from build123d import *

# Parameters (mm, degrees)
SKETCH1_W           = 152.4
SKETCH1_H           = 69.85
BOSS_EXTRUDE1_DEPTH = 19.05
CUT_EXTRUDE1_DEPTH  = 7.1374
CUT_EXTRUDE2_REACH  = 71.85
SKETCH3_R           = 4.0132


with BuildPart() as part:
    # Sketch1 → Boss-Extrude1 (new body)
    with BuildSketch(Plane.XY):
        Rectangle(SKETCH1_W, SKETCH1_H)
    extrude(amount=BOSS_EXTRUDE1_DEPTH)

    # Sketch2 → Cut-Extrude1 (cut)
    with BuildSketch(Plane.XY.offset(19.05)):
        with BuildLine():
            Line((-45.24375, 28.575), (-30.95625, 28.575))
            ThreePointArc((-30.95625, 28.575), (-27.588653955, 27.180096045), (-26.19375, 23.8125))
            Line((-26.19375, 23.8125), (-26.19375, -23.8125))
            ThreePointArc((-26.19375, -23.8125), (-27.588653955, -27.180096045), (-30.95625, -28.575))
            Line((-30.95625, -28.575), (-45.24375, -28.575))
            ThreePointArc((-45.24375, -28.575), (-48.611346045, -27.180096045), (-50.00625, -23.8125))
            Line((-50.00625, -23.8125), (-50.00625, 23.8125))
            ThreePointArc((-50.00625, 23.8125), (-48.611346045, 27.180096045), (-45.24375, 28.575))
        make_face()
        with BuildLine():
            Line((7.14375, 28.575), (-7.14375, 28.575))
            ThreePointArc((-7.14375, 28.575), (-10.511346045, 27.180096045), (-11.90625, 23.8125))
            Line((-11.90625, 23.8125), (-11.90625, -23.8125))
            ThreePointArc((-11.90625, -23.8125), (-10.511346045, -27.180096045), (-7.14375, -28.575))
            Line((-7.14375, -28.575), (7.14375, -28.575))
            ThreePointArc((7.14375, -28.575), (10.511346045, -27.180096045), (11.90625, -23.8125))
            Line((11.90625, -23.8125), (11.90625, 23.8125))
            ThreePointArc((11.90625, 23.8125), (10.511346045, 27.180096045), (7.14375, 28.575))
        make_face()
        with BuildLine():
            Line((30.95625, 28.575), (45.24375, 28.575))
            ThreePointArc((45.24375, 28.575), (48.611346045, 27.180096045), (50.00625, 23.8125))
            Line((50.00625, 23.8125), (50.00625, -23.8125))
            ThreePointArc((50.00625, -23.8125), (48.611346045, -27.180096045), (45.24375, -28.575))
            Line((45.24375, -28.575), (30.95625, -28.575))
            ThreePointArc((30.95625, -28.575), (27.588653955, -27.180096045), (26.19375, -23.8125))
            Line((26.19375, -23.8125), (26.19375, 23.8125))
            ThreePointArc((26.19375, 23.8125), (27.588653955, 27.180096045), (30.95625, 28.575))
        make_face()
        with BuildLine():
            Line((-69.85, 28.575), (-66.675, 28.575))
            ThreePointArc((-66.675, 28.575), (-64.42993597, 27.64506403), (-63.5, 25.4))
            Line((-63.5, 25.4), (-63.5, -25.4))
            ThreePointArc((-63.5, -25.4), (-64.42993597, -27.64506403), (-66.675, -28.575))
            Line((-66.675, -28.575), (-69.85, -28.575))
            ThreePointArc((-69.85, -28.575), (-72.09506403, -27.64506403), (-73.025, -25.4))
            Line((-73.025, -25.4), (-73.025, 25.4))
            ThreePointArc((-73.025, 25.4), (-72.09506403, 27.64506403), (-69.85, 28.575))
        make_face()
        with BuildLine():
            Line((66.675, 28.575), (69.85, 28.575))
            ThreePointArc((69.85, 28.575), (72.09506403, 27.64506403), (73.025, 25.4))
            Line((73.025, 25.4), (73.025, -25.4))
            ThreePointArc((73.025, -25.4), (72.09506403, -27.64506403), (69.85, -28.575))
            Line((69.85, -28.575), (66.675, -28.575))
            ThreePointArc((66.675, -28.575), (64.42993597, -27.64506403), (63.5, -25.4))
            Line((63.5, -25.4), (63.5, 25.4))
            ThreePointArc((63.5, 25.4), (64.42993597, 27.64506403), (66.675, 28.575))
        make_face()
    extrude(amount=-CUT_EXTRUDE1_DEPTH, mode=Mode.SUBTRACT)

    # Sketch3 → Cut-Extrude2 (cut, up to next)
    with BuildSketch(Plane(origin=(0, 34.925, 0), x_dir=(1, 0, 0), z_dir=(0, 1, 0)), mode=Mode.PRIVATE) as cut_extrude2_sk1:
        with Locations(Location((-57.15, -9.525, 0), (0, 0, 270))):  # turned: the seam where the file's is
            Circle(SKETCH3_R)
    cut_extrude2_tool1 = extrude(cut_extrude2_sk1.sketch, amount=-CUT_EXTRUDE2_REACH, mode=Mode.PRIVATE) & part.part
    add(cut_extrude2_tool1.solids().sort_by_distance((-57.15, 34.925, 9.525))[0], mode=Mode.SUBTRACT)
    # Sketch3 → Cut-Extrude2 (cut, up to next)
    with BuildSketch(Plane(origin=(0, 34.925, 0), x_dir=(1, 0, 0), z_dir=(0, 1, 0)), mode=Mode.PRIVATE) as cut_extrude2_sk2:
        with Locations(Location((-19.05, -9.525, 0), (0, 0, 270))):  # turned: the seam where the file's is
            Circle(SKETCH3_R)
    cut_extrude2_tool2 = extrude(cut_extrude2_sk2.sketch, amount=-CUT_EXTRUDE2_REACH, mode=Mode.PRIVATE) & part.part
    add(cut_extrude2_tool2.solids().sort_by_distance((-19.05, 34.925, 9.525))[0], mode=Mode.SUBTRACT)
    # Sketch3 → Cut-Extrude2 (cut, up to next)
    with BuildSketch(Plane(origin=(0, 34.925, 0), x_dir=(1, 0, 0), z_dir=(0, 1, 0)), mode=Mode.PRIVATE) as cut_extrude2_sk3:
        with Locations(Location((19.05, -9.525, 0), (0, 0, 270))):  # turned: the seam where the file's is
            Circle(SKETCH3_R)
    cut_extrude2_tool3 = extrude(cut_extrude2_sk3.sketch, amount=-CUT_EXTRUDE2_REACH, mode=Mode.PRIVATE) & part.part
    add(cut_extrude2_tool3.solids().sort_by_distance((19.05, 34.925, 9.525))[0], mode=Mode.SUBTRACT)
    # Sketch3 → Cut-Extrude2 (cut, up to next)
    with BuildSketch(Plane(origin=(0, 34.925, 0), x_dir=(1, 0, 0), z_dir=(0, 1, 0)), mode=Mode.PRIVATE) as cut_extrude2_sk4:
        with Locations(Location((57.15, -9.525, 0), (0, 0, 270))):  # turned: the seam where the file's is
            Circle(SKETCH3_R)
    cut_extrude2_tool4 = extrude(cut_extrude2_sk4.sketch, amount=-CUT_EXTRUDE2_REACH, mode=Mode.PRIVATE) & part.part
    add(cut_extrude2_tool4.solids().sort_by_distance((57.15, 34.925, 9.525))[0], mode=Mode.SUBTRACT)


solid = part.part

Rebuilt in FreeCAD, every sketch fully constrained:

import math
import FreeCAD as App
import Part
import Sketcher
from FreeCAD import Vector
Q = App.Units.Quantity


def add_polygon(sketch, points):
    """Adds a closed chain of lines whose ends are joined by coincident constraints."""
    first, n = sketch.GeometryCount, len(points)
    for a, b in zip(points, points[1:] + points[:1]):
        sketch.addGeometry(Part.LineSegment(App.Vector(*a, 0), App.Vector(*b, 0)), False)
    for i in range(n):
        sketch.addConstraint(Sketcher.Constraint("Coincident", first + i, 2, first + (i + 1) % n, 1))

doc = App.newDocument("Part")
body = doc.addObject("PartDesign::Body", "Body")

# Sketch on XY plane
sketch1 = body.newObject("Sketcher::SketchObject", "Sketch")
sketch1.AttachmentSupport = (doc.getObject("XY_Plane"), [""])
sketch1.MapMode = "FlatFace"
add_polygon(sketch1, [(-76, 35), (-76, -35), (76, -35), (76, 35)])  # lines 0-3
sketch1.addConstraint(Sketcher.Constraint("Vertical", 0))
sketch1.addConstraint(Sketcher.Constraint("Horizontal", 1))
sketch1.addConstraint(Sketcher.Constraint("Vertical", 2))
sketch1.addConstraint(Sketcher.Constraint("Horizontal", 3))
sketch1.addConstraint(Sketcher.Constraint("Symmetric", 0, 2, 2, 2, -1, 1))
sketch1.addConstraint(Sketcher.Constraint("DistanceX", 1, 1, 1, 2, Q("6 in")))
sketch1.addConstraint(Sketcher.Constraint("DistanceY", 0, 2, 0, 1, Q("2.75 in")))
pad1 = body.newObject("PartDesign::Pad", "Pad")
pad1.Profile = sketch1
pad1.Length = Q("0.75 in")

# Sketch on XY plane
sketch2 = body.newObject("Sketcher::SketchObject", "Sketch001")
sketch2.AttachmentSupport = (doc.getObject("XY_Plane"), [""])
sketch2.MapMode = "FlatFace"
sketch2.AttachmentOffset = App.Placement(Vector(0, 0, 0.75 * 25.4), App.Rotation())
sketch2.addGeometry(Part.LineSegment(Vector(-31, 28.6, 0), Vector(-45.2, 28.6, 0)), False)
sketch2.addGeometry(Part.ArcOfCircle(Part.Circle(Vector(-45.2, 23.8, 0), Vector(0, 0, 1), 4.8), math.radians(90), math.radians(180)), False)
sketch2.addGeometry(Part.LineSegment(Vector(-50, 23.8, 0), Vector(-50, -23.8, 0)), False)
sketch2.addGeometry(Part.ArcOfCircle(Part.Circle(Vector(-45.2, -23.8, 0), Vector(0, 0, 1), 4.8), math.radians(-180), math.radians(-90)), False)
sketch2.addGeometry(Part.LineSegment(Vector(-45.2, -28.6, 0), Vector(-31, -28.6, 0)), False)
sketch2.addGeometry(Part.ArcOfCircle(Part.Circle(Vector(-31, -23.8, 0), Vector(0, 0, 1), 4.8), math.radians(-90), math.radians(0)), False)
sketch2.addGeometry(Part.LineSegment(Vector(-26.2, -23.8, 0), Vector(-26.2, 23.8, 0)), False)
sketch2.addGeometry(Part.ArcOfCircle(Part.Circle(Vector(-31, 23.8, 0), Vector(0, 0, 1), 4.8), math.radians(0), math.radians(90)), False)
sketch2.addGeometry(Part.LineSegment(Vector(7.1, 28.6, 0), Vector(-7.1, 28.6, 0)), False)
sketch2.addGeometry(Part.ArcOfCircle(Part.Circle(Vector(-7.1, 23.8, 0), Vector(0, 0, 1), 4.8), math.radians(90), math.radians(180)), False)
sketch2.addGeometry(Part.LineSegment(Vector(-11.9, 23.8, 0), Vector(-11.9, -23.8, 0)), False)
sketch2.addGeometry(Part.ArcOfCircle(Part.Circle(Vector(-7.1, -23.8, 0), Vector(0, 0, 1), 4.8), math.radians(-180), math.radians(-90)), False)
sketch2.addGeometry(Part.LineSegment(Vector(-7.1, -28.6, 0), Vector(7.1, -28.6, 0)), False)
sketch2.addGeometry(Part.ArcOfCircle(Part.Circle(Vector(7.1, -23.8, 0), Vector(0, 0, 1), 4.8), math.radians(-90), math.radians(0)), False)
sketch2.addGeometry(Part.LineSegment(Vector(11.9, -23.8, 0), Vector(11.9, 23.8, 0)), False)
sketch2.addGeometry(Part.ArcOfCircle(Part.Circle(Vector(7.1, 23.8, 0), Vector(0, 0, 1), 4.8), math.radians(0), math.radians(90)), False)
sketch2.addGeometry(Part.LineSegment(Vector(45.2, 28.6, 0), Vector(31, 28.6, 0)), False)
sketch2.addGeometry(Part.ArcOfCircle(Part.Circle(Vector(31, 23.8, 0), Vector(0, 0, 1), 4.8), math.radians(90), math.radians(180)), False)
sketch2.addGeometry(Part.LineSegment(Vector(26.2, 23.8, 0), Vector(26.2, -23.8, 0)), False)
sketch2.addGeometry(Part.ArcOfCircle(Part.Circle(Vector(31, -23.8, 0), Vector(0, 0, 1), 4.8), math.radians(-180), math.radians(-90)), False)
sketch2.addGeometry(Part.LineSegment(Vector(31, -28.6, 0), Vector(45.2, -28.6, 0)), False)
sketch2.addGeometry(Part.ArcOfCircle(Part.Circle(Vector(45.2, -23.8, 0), Vector(0, 0, 1), 4.8), math.radians(-90), math.radians(0)), False)
sketch2.addGeometry(Part.LineSegment(Vector(50, -23.8, 0), Vector(50, 23.8, 0)), False)
sketch2.addGeometry(Part.ArcOfCircle(Part.Circle(Vector(45.2, 23.8, 0), Vector(0, 0, 1), 4.8), math.radians(0), math.radians(90)), False)
sketch2.addGeometry(Part.LineSegment(Vector(-66.7, 28.6, 0), Vector(-69.8, 28.6, 0)), False)
sketch2.addGeometry(Part.ArcOfCircle(Part.Circle(Vector(-69.8, 25.4, 0), Vector(0, 0, 1), 3.2), math.radians(90), math.radians(180)), False)
sketch2.addGeometry(Part.LineSegment(Vector(-73, 25.4, 0), Vector(-73, -25.4, 0)), False)
sketch2.addGeometry(Part.ArcOfCircle(Part.Circle(Vector(-69.8, -25.4, 0), Vector(0, 0, 1), 3.2), math.radians(-180), math.radians(-90)), False)
sketch2.addGeometry(Part.LineSegment(Vector(-69.8, -28.6, 0), Vector(-66.7, -28.6, 0)), False)
sketch2.addGeometry(Part.ArcOfCircle(Part.Circle(Vector(-66.7, -25.4, 0), Vector(0, 0, 1), 3.2), math.radians(-90), math.radians(0)), False)
sketch2.addGeometry(Part.LineSegment(Vector(-63.5, -25.4, 0), Vector(-63.5, 25.4, 0)), False)
sketch2.addGeometry(Part.ArcOfCircle(Part.Circle(Vector(-66.7, 25.4, 0), Vector(0, 0, 1), 3.2), math.radians(0), math.radians(90)), False)
sketch2.addGeometry(Part.LineSegment(Vector(69.8, 28.6, 0), Vector(66.7, 28.6, 0)), False)
sketch2.addGeometry(Part.ArcOfCircle(Part.Circle(Vector(66.7, 25.4, 0), Vector(0, 0, 1), 3.2), math.radians(90), math.radians(180)), False)
sketch2.addGeometry(Part.LineSegment(Vector(63.5, 25.4, 0), Vector(63.5, -25.4, 0)), False)
sketch2.addGeometry(Part.ArcOfCircle(Part.Circle(Vector(66.7, -25.4, 0), Vector(0, 0, 1), 3.2), math.radians(-180), math.radians(-90)), False)
sketch2.addGeometry(Part.LineSegment(Vector(66.7, -28.6, 0), Vector(69.8, -28.6, 0)), False)
sketch2.addGeometry(Part.ArcOfCircle(Part.Circle(Vector(69.8, -25.4, 0), Vector(0, 0, 1), 3.2), math.radians(-90), math.radians(0)), False)
sketch2.addGeometry(Part.LineSegment(Vector(73, -25.4, 0), Vector(73, 25.4, 0)), False)
sketch2.addGeometry(Part.ArcOfCircle(Part.Circle(Vector(69.8, 25.4, 0), Vector(0, 0, 1), 3.2), math.radians(0), math.radians(90)), False)
sketch2.addConstraint(Sketcher.Constraint("Tangent", 0, 2, 1, 1))
sketch2.addConstraint(Sketcher.Constraint("Tangent", 1, 2, 2, 1))
sketch2.addConstraint(Sketcher.Constraint("Tangent", 2, 2, 3, 1))
sketch2.addConstraint(Sketcher.Constraint("Tangent", 3, 2, 4, 1))
sketch2.addConstraint(Sketcher.Constraint("Tangent", 4, 2, 5, 1))
sketch2.addConstraint(Sketcher.Constraint("Tangent", 5, 2, 6, 1))
sketch2.addConstraint(Sketcher.Constraint("Tangent", 6, 2, 7, 1))
sketch2.addConstraint(Sketcher.Constraint("Tangent", 7, 2, 0, 1))
sketch2.addConstraint(Sketcher.Constraint("Tangent", 8, 2, 9, 1))
sketch2.addConstraint(Sketcher.Constraint("Tangent", 9, 2, 10, 1))
sketch2.addConstraint(Sketcher.Constraint("Tangent", 10, 2, 11, 1))
sketch2.addConstraint(Sketcher.Constraint("Tangent", 11, 2, 12, 1))
sketch2.addConstraint(Sketcher.Constraint("Tangent", 12, 2, 13, 1))
sketch2.addConstraint(Sketcher.Constraint("Tangent", 13, 2, 14, 1))
sketch2.addConstraint(Sketcher.Constraint("Tangent", 14, 2, 15, 1))
sketch2.addConstraint(Sketcher.Constraint("Tangent", 15, 2, 8, 1))
sketch2.addConstraint(Sketcher.Constraint("Tangent", 16, 2, 17, 1))
sketch2.addConstraint(Sketcher.Constraint("Tangent", 17, 2, 18, 1))
sketch2.addConstraint(Sketcher.Constraint("Tangent", 18, 2, 19, 1))
sketch2.addConstraint(Sketcher.Constraint("Tangent", 19, 2, 20, 1))
sketch2.addConstraint(Sketcher.Constraint("Tangent", 20, 2, 21, 1))
sketch2.addConstraint(Sketcher.Constraint("Tangent", 21, 2, 22, 1))
sketch2.addConstraint(Sketcher.Constraint("Tangent", 22, 2, 23, 1))
sketch2.addConstraint(Sketcher.Constraint("Tangent", 23, 2, 16, 1))
sketch2.addConstraint(Sketcher.Constraint("Tangent", 24, 2, 25, 1))
sketch2.addConstraint(Sketcher.Constraint("Tangent", 25, 2, 26, 1))
sketch2.addConstraint(Sketcher.Constraint("Tangent", 26, 2, 27, 1))
sketch2.addConstraint(Sketcher.Constraint("Tangent", 27, 2, 28, 1))
sketch2.addConstraint(Sketcher.Constraint("Tangent", 28, 2, 29, 1))
sketch2.addConstraint(Sketcher.Constraint("Tangent", 29, 2, 30, 1))
sketch2.addConstraint(Sketcher.Constraint("Tangent", 30, 2, 31, 1))
sketch2.addConstraint(Sketcher.Constraint("Tangent", 31, 2, 24, 1))
sketch2.addConstraint(Sketcher.Constraint("Tangent", 32, 2, 33, 1))
sketch2.addConstraint(Sketcher.Constraint("Tangent", 33, 2, 34, 1))
sketch2.addConstraint(Sketcher.Constraint("Tangent", 34, 2, 35, 1))
sketch2.addConstraint(Sketcher.Constraint("Tangent", 35, 2, 36, 1))
sketch2.addConstraint(Sketcher.Constraint("Tangent", 36, 2, 37, 1))
sketch2.addConstraint(Sketcher.Constraint("Tangent", 37, 2, 38, 1))
sketch2.addConstraint(Sketcher.Constraint("Tangent", 38, 2, 39, 1))
sketch2.addConstraint(Sketcher.Constraint("Tangent", 39, 2, 32, 1))
sketch2.addConstraint(Sketcher.Constraint("Horizontal", 0))
sketch2.addConstraint(Sketcher.Constraint("Vertical", 2))
sketch2.addConstraint(Sketcher.Constraint("Horizontal", 4))
sketch2.addConstraint(Sketcher.Constraint("Vertical", 6))
sketch2.addConstraint(Sketcher.Constraint("Horizontal", 8))
sketch2.addConstraint(Sketcher.Constraint("Vertical", 10))
sketch2.addConstraint(Sketcher.Constraint("Horizontal", 12))
sketch2.addConstraint(Sketcher.Constraint("Vertical", 14))
sketch2.addConstraint(Sketcher.Constraint("Horizontal", 16))
sketch2.addConstraint(Sketcher.Constraint("Vertical", 18))
sketch2.addConstraint(Sketcher.Constraint("Horizontal", 20))
sketch2.addConstraint(Sketcher.Constraint("Vertical", 22))
sketch2.addConstraint(Sketcher.Constraint("Horizontal", 24))
sketch2.addConstraint(Sketcher.Constraint("Vertical", 26))
sketch2.addConstraint(Sketcher.Constraint("Horizontal", 28))
sketch2.addConstraint(Sketcher.Constraint("Vertical", 30))
sketch2.addConstraint(Sketcher.Constraint("Horizontal", 32))
sketch2.addConstraint(Sketcher.Constraint("Vertical", 34))
sketch2.addConstraint(Sketcher.Constraint("Horizontal", 36))
sketch2.addConstraint(Sketcher.Constraint("Vertical", 38))
sketch2.addConstraint(Sketcher.Constraint("Equal", 1, 3))
sketch2.addConstraint(Sketcher.Constraint("Equal", 3, 5))
sketch2.addConstraint(Sketcher.Constraint("Equal", 5, 7))
sketch2.addConstraint(Sketcher.Constraint("Equal", 7, 9))
sketch2.addConstraint(Sketcher.Constraint("Equal", 9, 11))
sketch2.addConstraint(Sketcher.Constraint("Equal", 11, 13))
sketch2.addConstraint(Sketcher.Constraint("Equal", 13, 15))
sketch2.addConstraint(Sketcher.Constraint("Equal", 15, 17))
sketch2.addConstraint(Sketcher.Constraint("Equal", 17, 19))
sketch2.addConstraint(Sketcher.Constraint("Equal", 19, 21))
sketch2.addConstraint(Sketcher.Constraint("Equal", 21, 23))
sketch2.addConstraint(Sketcher.Constraint("Equal", 25, 27))
sketch2.addConstraint(Sketcher.Constraint("Equal", 27, 29))
sketch2.addConstraint(Sketcher.Constraint("Equal", 29, 31))
sketch2.addConstraint(Sketcher.Constraint("Equal", 31, 33))
sketch2.addConstraint(Sketcher.Constraint("Equal", 33, 35))
sketch2.addConstraint(Sketcher.Constraint("Equal", 35, 37))
sketch2.addConstraint(Sketcher.Constraint("Equal", 37, 39))
sketch2.addConstraint(Sketcher.Constraint("Symmetric", 9, 3, 13, 3, -1, 1))
sketch2.addConstraint(Sketcher.Constraint("Symmetric", 5, 3, 17, 3, -1, 1))
sketch2.addConstraint(Sketcher.Constraint("Symmetric", 1, 3, 21, 3, -1, 1))
sketch2.addConstraint(Sketcher.Constraint("Symmetric", 29, 3, 33, 3, -1, 1))
sketch2.addConstraint(Sketcher.Constraint("Symmetric", 25, 3, 37, 3, -1, 1))
sketch2.addConstraint(Sketcher.Constraint("Horizontal", 7, 3, 9, 3))
sketch2.addConstraint(Sketcher.Constraint("Horizontal", 5, 3, 11, 3))
sketch2.addConstraint(Sketcher.Constraint("Horizontal", 31, 3, 33, 3))
sketch2.addConstraint(Sketcher.Constraint("Horizontal", 23, 2, 24, 2))
sketch2.addConstraint(Sketcher.Constraint("Equal", 4, 8))
sketch2.addConstraint(Sketcher.Constraint("DistanceY", 26, 2, 26, 1, Q("2 in")))
sketch2.addConstraint(Sketcher.Constraint("Radius", 1, Q("0.1875 in")))
sketch2.addConstraint(Sketcher.Constraint("Radius", 25, Q("0.125 in")))
sketch2.addConstraint(Sketcher.Constraint("DistanceX", 29, 2, -1, 1, Q("2.5 in")))
sketch2.addConstraint(Sketcher.Constraint("DistanceX", 1, 3, 9, 3, Q("1.5 in")))
sketch2.addConstraint(Sketcher.Constraint("DistanceX", 0, 2, 0, 1, Q("0.5625 in")))
sketch2.addConstraint(Sketcher.Constraint("DistanceX", 24, 2, 24, 1, Q("0.125 in")))
pocket1 = body.newObject("PartDesign::Pocket", "Pocket")
pocket1.Profile = sketch2
pocket1.Length = Q("0.281 in")

# Sketch on XZ plane
sketch3 = body.newObject("Sketcher::SketchObject", "Sketch002")
sketch3.AttachmentSupport = (doc.getObject("XZ_Plane"), [""])
sketch3.MapMode = "FlatFace"
sketch3.AttachmentOffset = App.Placement(Vector(0, 0, -1.375 * 25.4), App.Rotation())
sketch3.addGeometry(Part.Circle(Vector(-57.1, 9.5, 0), Vector(0, 0, 1), 4), False)
sketch3.addConstraint(Sketcher.Constraint("Diameter", 0, Q("0.316 in")))
sketch3.addConstraint(Sketcher.Constraint("DistanceX", 0, 3, -1, 1, Q("2.25 in")))
sketch3.addConstraint(Sketcher.Constraint("DistanceY", -1, 1, 0, 3, Q("0.375 in")))
pocket2 = body.newObject("PartDesign::Pocket", "Pocket001")
pocket2.Profile = sketch3
pocket2.Type = "UpToFirst"
pocket2.Reversed = True

# Sketch on XZ plane
sketch4 = body.newObject("Sketcher::SketchObject", "Sketch003")
sketch4.AttachmentSupport = (doc.getObject("XZ_Plane"), [""])
sketch4.MapMode = "FlatFace"
sketch4.AttachmentOffset = App.Placement(Vector(0, 0, -1.375 * 25.4), App.Rotation())
sketch4.addGeometry(Part.Circle(Vector(-19.1, 9.5, 0), Vector(0, 0, 1), 4), False)
sketch4.addConstraint(Sketcher.Constraint("Diameter", 0, Q("0.316 in")))
sketch4.addConstraint(Sketcher.Constraint("DistanceX", 0, 3, -1, 1, Q("0.75 in")))
sketch4.addConstraint(Sketcher.Constraint("DistanceY", -1, 1, 0, 3, Q("0.375 in")))
pocket3 = body.newObject("PartDesign::Pocket", "Pocket002")
pocket3.Profile = sketch4
pocket3.Type = "UpToFirst"
pocket3.Reversed = True

# Sketch on XZ plane
sketch5 = body.newObject("Sketcher::SketchObject", "Sketch004")
sketch5.AttachmentSupport = (doc.getObject("XZ_Plane"), [""])
sketch5.MapMode = "FlatFace"
sketch5.AttachmentOffset = App.Placement(Vector(0, 0, -1.375 * 25.4), App.Rotation())
sketch5.addGeometry(Part.Circle(Vector(19.1, 9.5, 0), Vector(0, 0, 1), 4), False)
sketch5.addConstraint(Sketcher.Constraint("Diameter", 0, Q("0.316 in")))
sketch5.addConstraint(Sketcher.Constraint("DistanceX", -1, 1, 0, 3, Q("0.75 in")))
sketch5.addConstraint(Sketcher.Constraint("DistanceY", -1, 1, 0, 3, Q("0.375 in")))
pocket4 = body.newObject("PartDesign::Pocket", "Pocket003")
pocket4.Profile = sketch5
pocket4.Type = "UpToFirst"
pocket4.Reversed = True

# Sketch on XZ plane
sketch6 = body.newObject("Sketcher::SketchObject", "Sketch005")
sketch6.AttachmentSupport = (doc.getObject("XZ_Plane"), [""])
sketch6.MapMode = "FlatFace"
sketch6.AttachmentOffset = App.Placement(Vector(0, 0, -1.375 * 25.4), App.Rotation())
sketch6.addGeometry(Part.Circle(Vector(57.1, 9.5, 0), Vector(0, 0, 1), 4), False)
sketch6.addConstraint(Sketcher.Constraint("Diameter", 0, Q("0.316 in")))
sketch6.addConstraint(Sketcher.Constraint("DistanceX", -1, 1, 0, 3, Q("2.25 in")))
sketch6.addConstraint(Sketcher.Constraint("DistanceY", -1, 1, 0, 3, Q("0.375 in")))
pocket5 = body.newObject("PartDesign::Pocket", "Pocket004")
pocket5.Profile = sketch6
pocket5.Type = "UpToFirst"
pocket5.Reversed = True

doc.recompute()
